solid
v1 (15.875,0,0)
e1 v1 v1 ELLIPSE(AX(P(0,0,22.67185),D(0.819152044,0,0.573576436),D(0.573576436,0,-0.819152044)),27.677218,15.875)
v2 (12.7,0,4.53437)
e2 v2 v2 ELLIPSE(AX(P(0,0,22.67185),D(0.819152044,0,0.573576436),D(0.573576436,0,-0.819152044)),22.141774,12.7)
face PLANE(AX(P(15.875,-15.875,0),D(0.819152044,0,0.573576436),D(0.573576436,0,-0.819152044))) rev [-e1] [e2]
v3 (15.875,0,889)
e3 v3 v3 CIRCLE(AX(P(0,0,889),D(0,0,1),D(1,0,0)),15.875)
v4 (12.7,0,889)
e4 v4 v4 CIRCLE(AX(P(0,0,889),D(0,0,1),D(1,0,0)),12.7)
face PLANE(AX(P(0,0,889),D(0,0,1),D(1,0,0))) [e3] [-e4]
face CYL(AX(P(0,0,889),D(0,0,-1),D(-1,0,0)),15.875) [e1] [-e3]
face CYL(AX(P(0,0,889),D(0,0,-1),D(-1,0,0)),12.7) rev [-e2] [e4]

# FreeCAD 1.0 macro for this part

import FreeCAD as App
import Part
import Sketcher
Q = App.Units.Quantity

doc = App.newDocument("Part")
params = doc.addObject("Spreadsheet::Sheet", "Params")
for row, (alias, value) in enumerate([
    ("sketch1_diameter", "1 in"),
    ("sketch1_diameter2", "1.25 in"),
    ("pad1_length", "35 in"),
    ("sketch2_width", "2.5 in"),
], start=1):
    params.set(f"A{row}", alias)
    params.set(f"B{row}", "=" + value)
    params.setAlias(f"B{row}", alias)

body = doc.addObject("PartDesign::Body", "Body")

# Sketch on XY plane
sketch1 = body.newObject("Sketcher::SketchObject", "Sketch")
sketch1.AttachmentSupport = (doc.getObject("XY_Plane"), [""])
sketch1.MapMode = "FlatFace"
sketch1.addGeometry(Part.Circle(App.Vector(0, 0, 0), App.Vector(0, 0, 1), 16), False)
sketch1.addGeometry(Part.Circle(App.Vector(0, 0, 0), App.Vector(0, 0, 1), 13), False)
sketch1.addConstraint(Sketcher.Constraint("Coincident", 0, 3, -1, 1))
sketch1.addConstraint(Sketcher.Constraint("Coincident", 1, 3, -1, 1))
sketch1.addConstraint(Sketcher.Constraint("Diameter", 1, Q("1 in")))
sketch1.addConstraint(Sketcher.Constraint("Diameter", 0, Q("1.25 in")))
sketch1.setExpression("Constraints[2]", "Params.sketch1_diameter")
sketch1.setExpression("Constraints[3]", "Params.sketch1_diameter2")
pad1 = body.newObject("PartDesign::Pad", "Pad")
pad1.Profile = sketch1
pad1.setExpression("Length", "Params.pad1_length")

# Sketch on XZ plane
sketch2 = body.newObject("Sketcher::SketchObject", "Sketch001")
sketch2.AttachmentSupport = (doc.getObject("XZ_Plane"), [""])
sketch2.MapMode = "FlatFace"
sketch2.addGeometry(Part.LineSegment(App.Vector(16, 0, 0), App.Vector(-48, 0, 0)), False)
sketch2.addGeometry(Part.LineSegment(App.Vector(-48, 0, 0), App.Vector(-48, 91, 0)), False)
sketch2.addGeometry(Part.LineSegment(App.Vector(-48, 91, 0), App.Vector(16, 0, 0)), False)
sketch2.addConstraint(Sketcher.Constraint("Coincident", 0, 2, 1, 1))
sketch2.addConstraint(Sketcher.Constraint("Coincident", 1, 2, 2, 1))
sketch2.addConstraint(Sketcher.Constraint("Coincident", 2, 2, 0, 1))
sketch2.addConstraint(Sketcher.Constraint("Horizontal", 0))
sketch2.addConstraint(Sketcher.Constraint("Vertical", 1))
sketch2.addConstraint(Sketcher.Constraint("PointOnObject", 0, 2, -1))
sketch2.addConstraint(Sketcher.Constraint("DistanceX", 0, 2, 0, 1, Q("2.5 in")))
sketch2.addConstraint(Sketcher.Constraint("Angle", 2, Q("-55 deg")))
sketch2.addConstraint(Sketcher.Constraint("DistanceX", 0, 2, -1, 1, Q("1.875 in")))
sketch2.setExpression("Constraints[6]", "Params.sketch2_width")
pocket1 = body.newObject("PartDesign::Pocket", "Pocket")
pocket1.Profile = sketch2
pocket1.Type = "ThroughAll"
pocket1.Midplane = True

doc.recompute()
